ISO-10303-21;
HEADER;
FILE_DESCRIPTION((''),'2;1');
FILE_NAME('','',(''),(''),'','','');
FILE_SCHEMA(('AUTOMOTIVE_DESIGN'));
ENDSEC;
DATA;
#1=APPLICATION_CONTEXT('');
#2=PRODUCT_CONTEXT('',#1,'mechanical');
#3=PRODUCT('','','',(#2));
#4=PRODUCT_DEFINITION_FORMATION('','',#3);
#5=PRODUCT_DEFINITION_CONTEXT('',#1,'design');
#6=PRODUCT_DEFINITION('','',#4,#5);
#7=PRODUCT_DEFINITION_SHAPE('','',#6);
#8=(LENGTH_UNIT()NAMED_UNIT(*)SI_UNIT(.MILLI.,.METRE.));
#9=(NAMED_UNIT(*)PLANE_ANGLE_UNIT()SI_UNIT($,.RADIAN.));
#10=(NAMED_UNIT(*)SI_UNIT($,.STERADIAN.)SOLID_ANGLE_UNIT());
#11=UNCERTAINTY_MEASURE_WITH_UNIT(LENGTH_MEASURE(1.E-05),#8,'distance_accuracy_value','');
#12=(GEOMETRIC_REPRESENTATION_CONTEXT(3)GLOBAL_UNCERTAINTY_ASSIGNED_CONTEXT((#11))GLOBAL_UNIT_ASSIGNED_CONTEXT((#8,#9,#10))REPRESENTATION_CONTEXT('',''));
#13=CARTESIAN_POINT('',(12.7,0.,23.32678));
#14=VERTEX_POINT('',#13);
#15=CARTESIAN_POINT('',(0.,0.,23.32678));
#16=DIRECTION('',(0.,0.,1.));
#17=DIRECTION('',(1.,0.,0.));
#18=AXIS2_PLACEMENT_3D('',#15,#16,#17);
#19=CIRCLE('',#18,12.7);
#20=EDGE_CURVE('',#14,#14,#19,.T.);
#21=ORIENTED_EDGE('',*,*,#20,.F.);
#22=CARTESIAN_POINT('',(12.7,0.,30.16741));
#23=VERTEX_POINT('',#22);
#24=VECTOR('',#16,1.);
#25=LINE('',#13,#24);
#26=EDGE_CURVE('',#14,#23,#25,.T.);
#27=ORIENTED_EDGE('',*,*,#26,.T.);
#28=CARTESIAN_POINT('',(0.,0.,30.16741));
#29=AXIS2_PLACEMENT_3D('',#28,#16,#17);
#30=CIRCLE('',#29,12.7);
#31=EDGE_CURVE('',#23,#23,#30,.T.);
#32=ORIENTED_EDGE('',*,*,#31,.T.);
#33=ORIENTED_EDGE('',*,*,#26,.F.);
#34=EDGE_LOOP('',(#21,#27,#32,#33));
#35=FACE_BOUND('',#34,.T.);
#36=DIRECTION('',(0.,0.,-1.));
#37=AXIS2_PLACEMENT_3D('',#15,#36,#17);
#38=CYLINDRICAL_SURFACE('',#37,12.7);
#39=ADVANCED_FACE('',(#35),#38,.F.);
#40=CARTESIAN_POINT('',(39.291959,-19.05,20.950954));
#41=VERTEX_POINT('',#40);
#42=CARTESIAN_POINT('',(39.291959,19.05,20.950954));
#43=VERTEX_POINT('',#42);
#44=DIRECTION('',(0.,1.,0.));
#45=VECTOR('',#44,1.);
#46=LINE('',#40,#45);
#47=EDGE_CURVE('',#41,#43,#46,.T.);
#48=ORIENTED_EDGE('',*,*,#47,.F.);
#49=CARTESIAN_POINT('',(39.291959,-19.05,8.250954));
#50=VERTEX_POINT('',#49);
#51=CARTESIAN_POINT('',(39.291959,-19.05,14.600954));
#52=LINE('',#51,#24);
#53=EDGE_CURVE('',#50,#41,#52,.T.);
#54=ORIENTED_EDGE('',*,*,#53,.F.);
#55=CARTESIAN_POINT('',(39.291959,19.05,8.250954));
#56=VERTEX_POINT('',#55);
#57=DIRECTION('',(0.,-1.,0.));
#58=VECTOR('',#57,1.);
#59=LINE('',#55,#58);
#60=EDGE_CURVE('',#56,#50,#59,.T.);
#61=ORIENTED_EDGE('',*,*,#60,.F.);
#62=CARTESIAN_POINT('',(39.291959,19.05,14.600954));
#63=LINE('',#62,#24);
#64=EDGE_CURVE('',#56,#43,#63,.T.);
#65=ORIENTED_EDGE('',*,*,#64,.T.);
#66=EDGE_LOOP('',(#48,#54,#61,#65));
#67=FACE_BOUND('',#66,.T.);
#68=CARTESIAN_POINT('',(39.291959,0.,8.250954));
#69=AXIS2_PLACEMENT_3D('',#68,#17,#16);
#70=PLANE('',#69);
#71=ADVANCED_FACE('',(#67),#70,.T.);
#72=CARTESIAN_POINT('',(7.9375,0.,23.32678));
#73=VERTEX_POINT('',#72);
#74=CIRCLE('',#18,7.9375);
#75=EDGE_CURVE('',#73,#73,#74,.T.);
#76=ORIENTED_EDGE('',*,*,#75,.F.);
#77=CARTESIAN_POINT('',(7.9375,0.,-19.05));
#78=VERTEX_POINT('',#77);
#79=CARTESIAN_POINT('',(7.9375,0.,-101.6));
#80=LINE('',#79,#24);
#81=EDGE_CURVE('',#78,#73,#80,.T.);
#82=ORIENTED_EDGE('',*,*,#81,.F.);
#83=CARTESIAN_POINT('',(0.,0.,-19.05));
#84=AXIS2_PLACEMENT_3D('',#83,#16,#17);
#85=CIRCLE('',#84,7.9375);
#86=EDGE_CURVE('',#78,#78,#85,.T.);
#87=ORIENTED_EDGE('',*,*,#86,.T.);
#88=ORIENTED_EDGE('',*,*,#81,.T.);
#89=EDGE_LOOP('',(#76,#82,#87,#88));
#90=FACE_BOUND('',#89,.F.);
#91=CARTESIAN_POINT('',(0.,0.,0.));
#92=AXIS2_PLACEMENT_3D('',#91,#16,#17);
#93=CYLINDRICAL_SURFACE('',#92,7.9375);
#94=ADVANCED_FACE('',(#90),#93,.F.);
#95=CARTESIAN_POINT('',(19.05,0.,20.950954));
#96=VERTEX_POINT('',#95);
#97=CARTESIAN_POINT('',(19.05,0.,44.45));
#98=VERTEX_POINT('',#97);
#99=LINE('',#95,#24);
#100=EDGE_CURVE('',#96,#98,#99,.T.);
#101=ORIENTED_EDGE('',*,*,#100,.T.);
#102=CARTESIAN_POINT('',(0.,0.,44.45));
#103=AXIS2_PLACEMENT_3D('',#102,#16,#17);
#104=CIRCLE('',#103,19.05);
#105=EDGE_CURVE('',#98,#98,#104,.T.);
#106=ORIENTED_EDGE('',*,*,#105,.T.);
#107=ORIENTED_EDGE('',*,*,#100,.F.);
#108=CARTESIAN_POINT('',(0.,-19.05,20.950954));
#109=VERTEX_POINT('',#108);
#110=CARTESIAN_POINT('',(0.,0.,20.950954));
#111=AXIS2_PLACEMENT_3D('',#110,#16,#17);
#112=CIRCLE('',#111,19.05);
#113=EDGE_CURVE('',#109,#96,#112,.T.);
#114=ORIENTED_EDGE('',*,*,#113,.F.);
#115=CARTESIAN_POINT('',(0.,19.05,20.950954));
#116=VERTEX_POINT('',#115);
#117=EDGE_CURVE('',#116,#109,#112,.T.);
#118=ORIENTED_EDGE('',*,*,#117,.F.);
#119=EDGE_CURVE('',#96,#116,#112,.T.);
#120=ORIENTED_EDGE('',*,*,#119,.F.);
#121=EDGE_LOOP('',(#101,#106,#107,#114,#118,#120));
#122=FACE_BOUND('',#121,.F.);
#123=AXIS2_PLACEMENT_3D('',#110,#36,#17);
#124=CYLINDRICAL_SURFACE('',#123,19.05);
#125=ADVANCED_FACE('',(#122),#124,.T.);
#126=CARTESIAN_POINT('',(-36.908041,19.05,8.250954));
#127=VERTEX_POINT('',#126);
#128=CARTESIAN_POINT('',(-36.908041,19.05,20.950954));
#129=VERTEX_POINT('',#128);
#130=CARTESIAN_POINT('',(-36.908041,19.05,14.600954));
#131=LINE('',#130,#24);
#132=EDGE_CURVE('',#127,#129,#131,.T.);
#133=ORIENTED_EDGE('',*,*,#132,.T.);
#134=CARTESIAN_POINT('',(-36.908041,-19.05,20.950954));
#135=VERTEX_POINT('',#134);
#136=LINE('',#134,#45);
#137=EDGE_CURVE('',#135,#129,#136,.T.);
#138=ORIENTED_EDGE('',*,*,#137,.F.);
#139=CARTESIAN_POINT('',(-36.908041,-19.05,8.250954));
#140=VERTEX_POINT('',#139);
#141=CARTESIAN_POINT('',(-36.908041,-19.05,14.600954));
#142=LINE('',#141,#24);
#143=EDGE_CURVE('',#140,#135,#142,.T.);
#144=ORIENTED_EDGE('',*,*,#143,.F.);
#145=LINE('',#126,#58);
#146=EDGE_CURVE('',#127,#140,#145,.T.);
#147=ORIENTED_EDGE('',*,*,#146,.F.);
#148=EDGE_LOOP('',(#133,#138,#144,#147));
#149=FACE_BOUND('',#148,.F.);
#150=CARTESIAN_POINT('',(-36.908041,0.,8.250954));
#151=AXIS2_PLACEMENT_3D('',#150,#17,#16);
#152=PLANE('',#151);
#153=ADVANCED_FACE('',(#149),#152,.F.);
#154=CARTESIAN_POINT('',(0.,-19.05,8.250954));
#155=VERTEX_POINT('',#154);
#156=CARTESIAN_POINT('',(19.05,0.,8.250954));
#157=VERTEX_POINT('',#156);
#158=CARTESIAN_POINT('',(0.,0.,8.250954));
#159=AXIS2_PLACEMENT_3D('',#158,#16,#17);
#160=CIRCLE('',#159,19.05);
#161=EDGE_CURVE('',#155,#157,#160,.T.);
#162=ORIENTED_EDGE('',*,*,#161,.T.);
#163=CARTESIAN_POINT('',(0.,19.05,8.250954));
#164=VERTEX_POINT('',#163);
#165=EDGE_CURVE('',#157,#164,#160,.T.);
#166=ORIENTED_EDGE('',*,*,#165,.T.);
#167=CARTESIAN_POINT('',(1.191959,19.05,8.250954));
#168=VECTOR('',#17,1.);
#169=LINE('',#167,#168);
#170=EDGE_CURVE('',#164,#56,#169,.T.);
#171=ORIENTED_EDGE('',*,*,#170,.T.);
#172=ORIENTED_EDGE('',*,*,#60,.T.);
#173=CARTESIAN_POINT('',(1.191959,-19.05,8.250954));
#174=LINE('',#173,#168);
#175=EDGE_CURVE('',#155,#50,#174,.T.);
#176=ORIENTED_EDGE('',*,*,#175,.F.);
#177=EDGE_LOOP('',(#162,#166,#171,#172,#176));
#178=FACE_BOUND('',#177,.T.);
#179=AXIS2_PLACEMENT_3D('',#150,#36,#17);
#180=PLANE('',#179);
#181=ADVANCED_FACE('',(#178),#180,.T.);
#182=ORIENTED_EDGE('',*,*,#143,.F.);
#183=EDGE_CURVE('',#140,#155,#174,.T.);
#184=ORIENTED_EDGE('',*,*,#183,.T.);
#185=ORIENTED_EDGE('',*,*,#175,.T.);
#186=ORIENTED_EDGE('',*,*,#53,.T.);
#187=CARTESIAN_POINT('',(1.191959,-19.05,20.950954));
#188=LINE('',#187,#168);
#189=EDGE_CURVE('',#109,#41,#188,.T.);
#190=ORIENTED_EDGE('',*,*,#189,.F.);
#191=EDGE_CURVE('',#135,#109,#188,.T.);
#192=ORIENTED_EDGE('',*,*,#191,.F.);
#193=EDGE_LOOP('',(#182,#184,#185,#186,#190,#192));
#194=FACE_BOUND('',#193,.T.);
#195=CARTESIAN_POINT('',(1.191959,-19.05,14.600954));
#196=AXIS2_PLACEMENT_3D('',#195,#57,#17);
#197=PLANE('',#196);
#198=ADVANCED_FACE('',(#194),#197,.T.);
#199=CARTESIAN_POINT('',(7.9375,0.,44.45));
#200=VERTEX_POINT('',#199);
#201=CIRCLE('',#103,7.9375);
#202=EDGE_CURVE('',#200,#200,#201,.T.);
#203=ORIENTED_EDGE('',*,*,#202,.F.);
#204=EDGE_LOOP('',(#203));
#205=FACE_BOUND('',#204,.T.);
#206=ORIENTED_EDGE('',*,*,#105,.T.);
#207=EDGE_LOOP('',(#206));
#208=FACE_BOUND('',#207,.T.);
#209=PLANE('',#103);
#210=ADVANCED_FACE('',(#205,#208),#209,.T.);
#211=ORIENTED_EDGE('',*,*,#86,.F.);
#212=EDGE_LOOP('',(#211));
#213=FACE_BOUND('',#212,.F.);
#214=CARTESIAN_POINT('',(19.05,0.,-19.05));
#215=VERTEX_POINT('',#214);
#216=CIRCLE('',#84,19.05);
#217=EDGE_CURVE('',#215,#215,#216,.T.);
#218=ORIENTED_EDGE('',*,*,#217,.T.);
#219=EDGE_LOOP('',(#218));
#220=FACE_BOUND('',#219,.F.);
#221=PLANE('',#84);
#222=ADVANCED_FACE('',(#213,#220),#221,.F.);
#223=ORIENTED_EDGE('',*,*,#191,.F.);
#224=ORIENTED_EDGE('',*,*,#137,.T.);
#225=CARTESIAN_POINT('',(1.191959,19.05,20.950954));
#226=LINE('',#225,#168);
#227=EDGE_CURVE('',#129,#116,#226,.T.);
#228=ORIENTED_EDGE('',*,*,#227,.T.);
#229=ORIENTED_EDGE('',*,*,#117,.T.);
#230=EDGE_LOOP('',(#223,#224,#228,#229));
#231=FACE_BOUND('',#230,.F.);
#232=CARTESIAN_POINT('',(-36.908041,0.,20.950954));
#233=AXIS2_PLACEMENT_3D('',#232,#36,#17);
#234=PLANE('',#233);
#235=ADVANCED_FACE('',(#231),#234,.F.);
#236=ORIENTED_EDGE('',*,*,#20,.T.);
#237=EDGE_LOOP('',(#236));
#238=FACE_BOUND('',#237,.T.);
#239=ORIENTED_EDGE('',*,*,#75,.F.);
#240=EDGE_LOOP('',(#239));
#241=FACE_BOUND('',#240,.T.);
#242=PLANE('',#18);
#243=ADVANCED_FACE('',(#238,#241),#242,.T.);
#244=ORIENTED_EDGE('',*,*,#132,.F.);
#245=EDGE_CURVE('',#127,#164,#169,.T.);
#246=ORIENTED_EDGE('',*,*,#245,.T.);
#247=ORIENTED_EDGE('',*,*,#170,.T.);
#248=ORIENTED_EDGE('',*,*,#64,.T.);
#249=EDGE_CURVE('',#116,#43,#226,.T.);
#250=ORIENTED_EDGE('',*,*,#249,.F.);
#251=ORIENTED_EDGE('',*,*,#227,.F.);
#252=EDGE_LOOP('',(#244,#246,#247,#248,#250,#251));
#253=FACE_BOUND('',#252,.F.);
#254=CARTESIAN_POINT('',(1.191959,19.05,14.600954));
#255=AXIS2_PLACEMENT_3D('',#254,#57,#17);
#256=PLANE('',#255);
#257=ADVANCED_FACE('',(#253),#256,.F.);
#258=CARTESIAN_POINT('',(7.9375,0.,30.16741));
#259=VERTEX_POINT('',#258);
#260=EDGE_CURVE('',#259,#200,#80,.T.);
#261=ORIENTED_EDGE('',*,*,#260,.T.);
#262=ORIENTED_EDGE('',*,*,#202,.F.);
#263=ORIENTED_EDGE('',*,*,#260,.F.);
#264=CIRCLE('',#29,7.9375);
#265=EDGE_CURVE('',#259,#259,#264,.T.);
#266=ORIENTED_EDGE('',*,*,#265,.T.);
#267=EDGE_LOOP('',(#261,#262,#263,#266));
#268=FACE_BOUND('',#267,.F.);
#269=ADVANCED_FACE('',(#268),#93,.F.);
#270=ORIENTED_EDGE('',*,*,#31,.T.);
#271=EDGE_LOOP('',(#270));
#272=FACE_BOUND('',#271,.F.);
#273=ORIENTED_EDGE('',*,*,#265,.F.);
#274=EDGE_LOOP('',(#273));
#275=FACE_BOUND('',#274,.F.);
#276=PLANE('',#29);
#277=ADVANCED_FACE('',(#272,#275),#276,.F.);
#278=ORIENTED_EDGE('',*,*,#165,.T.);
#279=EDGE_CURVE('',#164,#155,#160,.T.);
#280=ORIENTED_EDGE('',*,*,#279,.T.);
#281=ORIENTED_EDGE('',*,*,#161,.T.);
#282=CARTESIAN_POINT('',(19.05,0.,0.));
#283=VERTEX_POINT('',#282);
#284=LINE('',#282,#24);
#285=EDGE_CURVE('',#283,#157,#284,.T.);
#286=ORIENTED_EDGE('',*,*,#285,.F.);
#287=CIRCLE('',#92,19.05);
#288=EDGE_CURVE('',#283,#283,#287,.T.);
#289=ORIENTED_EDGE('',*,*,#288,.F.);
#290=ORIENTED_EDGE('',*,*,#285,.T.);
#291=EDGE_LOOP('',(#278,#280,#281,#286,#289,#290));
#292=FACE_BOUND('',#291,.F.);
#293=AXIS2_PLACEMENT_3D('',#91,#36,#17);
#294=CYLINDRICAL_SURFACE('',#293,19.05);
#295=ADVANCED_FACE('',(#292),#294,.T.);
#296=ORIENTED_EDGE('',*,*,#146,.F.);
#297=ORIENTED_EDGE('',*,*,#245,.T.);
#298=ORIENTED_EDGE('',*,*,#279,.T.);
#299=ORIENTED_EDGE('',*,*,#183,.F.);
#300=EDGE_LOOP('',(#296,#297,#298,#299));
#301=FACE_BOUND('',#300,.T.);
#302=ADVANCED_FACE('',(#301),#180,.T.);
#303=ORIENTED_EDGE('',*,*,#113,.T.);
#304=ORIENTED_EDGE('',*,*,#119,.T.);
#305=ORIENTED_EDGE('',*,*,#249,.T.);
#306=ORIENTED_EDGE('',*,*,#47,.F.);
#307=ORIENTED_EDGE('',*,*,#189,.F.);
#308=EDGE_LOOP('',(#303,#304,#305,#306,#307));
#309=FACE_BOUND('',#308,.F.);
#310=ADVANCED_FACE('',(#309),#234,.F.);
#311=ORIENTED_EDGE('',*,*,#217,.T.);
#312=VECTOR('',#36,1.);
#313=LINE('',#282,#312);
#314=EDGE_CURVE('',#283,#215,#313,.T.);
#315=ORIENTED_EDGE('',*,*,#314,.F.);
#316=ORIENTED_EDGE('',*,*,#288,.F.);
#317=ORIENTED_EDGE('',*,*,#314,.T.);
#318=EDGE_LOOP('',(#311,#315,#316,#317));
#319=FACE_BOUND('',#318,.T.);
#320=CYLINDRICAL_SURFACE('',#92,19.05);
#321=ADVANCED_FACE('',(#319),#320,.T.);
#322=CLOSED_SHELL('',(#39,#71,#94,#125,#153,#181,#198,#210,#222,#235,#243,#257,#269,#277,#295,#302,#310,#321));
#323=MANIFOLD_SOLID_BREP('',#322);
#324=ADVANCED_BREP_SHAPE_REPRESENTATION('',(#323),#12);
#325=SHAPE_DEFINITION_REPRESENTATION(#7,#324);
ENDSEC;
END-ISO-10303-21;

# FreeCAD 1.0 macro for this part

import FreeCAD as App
import Part
import Sketcher

V = App.Vector
Q = App.Units.Quantity


def add_polygon(sketch, points):
    """Adds a closed chain of lines whose ends are joined by coincident constraints."""
    first, n = sketch.GeometryCount, len(points)
    for a, b in zip(points, points[1:] + points[:1]):
        sketch.addGeometry(Part.LineSegment(App.Vector(*a, 0), App.Vector(*b, 0)), False)
    for i in range(n):
        sketch.addConstraint(Sketcher.Constraint("Coincident", first + i, 2, first + (i + 1) % n, 1))

doc = App.newDocument("Part")
body = doc.addObject("PartDesign::Body", "Body")

# Sketch on XZ plane
sketch1 = body.newObject("Sketcher::SketchObject", "Sketch")
sketch1.AttachmentSupport = (doc.getObject("XZ_Plane"), [""])
sketch1.MapMode = "FlatFace"
add_polygon(sketch1, [(-37, 21), (-37, 8), (39, 8), (39, 21)])  # lines 0-3
sketch1.addConstraint([
    Sketcher.Constraint("Vertical", 0),
    Sketcher.Constraint("Horizontal", 1),
    Sketcher.Constraint("Vertical", 2),
    Sketcher.Constraint("Horizontal", 3),
    Sketcher.Constraint("DistanceX", 1, 1, 1, 2, Q("3 in")),
    Sketcher.Constraint("DistanceY", 0, 2, 0, 1, Q("0.5 in")),
    Sketcher.Constraint("DistanceX", 0, 2, -1, 1, 36.908041),
    Sketcher.Constraint("DistanceY", -1, 1, 0, 2, 8.250954),
])
pad1 = body.newObject("PartDesign::Pad", "Pad")
pad1.Profile = sketch1
pad1.Length = Q("1.5 in")
pad1.Midplane = True

# Sketch on XY plane
sketch2 = body.newObject("Sketcher::SketchObject", "Sketch001")
sketch2.AttachmentSupport = (doc.getObject("XY_Plane"), [""])
sketch2.MapMode = "FlatFace"
sketch2.addGeometry(Part.Circle(V(0, 0, 0), V(0, 0, 1), 19), False)
sketch2.addConstraint([
    Sketcher.Constraint("Coincident", 0, 3, -1, 1),
    Sketcher.Constraint("Diameter", 0, Q("1.5 in")),
])
pad2 = body.newObject("PartDesign::Pad", "Pad001")
pad2.Profile = sketch2
pad2.Type = "TwoLengths"
pad2.Length = Q("0.75 in")
pad2.Length2 = 8.250954
pad2.Reversed = True

# Sketch on XY plane
sketch3 = body.newObject("Sketcher::SketchObject", "Sketch002")
sketch3.AttachmentSupport = (doc.getObject("XY_Plane"), [""])
sketch3.MapMode = "FlatFace"
sketch3.AttachmentOffset = App.Placement(V(0, 0, 20.950954), App.Rotation())
sketch3.addGeometry(Part.Circle(V(0, 0, 0), V(0, 0, 1), 19), False)
sketch3.addConstraint([
    Sketcher.Constraint("Coincident", 0, 3, -1, 1),
    Sketcher.Constraint("Diameter", 0, Q("1.5 in")),
])
pad3 = body.newObject("PartDesign::Pad", "Pad002")
pad3.Profile = sketch3
pad3.Length = 23.499046

# Sketch on XY plane
sketch4 = body.newObject("Sketcher::SketchObject", "Sketch003")
sketch4.AttachmentSupport = (doc.getObject("XY_Plane"), [""])
sketch4.MapMode = "FlatFace"
sketch4.addGeometry(Part.Circle(V(0, 0, 0), V(0, 0, 1), 8), False)
sketch4.addConstraint([
    Sketcher.Constraint("Coincident", 0, 3, -1, 1),
    Sketcher.Constraint("Diameter", 0, Q("0.625 in")),
])
pocket1 = body.newObject("PartDesign::Pocket", "Pocket")
pocket1.Profile = sketch4
pocket1.Length = Q("8 in")
pocket1.Midplane = True

# Sketch on XY plane
sketch5 = body.newObject("Sketcher::SketchObject", "Sketch004")
sketch5.AttachmentSupport = (doc.getObject("XY_Plane"), [""])
sketch5.MapMode = "FlatFace"
sketch5.AttachmentOffset = App.Placement(V(0, 0, 23.32678), App.Rotation())
sketch5.addGeometry(Part.Circle(V(0, 0, 0), V(0, 0, 1), 13), False)
sketch5.addConstraint([
    Sketcher.Constraint("Coincident", 0, 3, -1, 1),
    Sketcher.Constraint("Diameter", 0, Q("1 in")),
])
pocket2 = body.newObject("PartDesign::Pocket", "Pocket001")
pocket2.Profile = sketch5
pocket2.Length = 6.84063
pocket2.Reversed = True

doc.recompute()
